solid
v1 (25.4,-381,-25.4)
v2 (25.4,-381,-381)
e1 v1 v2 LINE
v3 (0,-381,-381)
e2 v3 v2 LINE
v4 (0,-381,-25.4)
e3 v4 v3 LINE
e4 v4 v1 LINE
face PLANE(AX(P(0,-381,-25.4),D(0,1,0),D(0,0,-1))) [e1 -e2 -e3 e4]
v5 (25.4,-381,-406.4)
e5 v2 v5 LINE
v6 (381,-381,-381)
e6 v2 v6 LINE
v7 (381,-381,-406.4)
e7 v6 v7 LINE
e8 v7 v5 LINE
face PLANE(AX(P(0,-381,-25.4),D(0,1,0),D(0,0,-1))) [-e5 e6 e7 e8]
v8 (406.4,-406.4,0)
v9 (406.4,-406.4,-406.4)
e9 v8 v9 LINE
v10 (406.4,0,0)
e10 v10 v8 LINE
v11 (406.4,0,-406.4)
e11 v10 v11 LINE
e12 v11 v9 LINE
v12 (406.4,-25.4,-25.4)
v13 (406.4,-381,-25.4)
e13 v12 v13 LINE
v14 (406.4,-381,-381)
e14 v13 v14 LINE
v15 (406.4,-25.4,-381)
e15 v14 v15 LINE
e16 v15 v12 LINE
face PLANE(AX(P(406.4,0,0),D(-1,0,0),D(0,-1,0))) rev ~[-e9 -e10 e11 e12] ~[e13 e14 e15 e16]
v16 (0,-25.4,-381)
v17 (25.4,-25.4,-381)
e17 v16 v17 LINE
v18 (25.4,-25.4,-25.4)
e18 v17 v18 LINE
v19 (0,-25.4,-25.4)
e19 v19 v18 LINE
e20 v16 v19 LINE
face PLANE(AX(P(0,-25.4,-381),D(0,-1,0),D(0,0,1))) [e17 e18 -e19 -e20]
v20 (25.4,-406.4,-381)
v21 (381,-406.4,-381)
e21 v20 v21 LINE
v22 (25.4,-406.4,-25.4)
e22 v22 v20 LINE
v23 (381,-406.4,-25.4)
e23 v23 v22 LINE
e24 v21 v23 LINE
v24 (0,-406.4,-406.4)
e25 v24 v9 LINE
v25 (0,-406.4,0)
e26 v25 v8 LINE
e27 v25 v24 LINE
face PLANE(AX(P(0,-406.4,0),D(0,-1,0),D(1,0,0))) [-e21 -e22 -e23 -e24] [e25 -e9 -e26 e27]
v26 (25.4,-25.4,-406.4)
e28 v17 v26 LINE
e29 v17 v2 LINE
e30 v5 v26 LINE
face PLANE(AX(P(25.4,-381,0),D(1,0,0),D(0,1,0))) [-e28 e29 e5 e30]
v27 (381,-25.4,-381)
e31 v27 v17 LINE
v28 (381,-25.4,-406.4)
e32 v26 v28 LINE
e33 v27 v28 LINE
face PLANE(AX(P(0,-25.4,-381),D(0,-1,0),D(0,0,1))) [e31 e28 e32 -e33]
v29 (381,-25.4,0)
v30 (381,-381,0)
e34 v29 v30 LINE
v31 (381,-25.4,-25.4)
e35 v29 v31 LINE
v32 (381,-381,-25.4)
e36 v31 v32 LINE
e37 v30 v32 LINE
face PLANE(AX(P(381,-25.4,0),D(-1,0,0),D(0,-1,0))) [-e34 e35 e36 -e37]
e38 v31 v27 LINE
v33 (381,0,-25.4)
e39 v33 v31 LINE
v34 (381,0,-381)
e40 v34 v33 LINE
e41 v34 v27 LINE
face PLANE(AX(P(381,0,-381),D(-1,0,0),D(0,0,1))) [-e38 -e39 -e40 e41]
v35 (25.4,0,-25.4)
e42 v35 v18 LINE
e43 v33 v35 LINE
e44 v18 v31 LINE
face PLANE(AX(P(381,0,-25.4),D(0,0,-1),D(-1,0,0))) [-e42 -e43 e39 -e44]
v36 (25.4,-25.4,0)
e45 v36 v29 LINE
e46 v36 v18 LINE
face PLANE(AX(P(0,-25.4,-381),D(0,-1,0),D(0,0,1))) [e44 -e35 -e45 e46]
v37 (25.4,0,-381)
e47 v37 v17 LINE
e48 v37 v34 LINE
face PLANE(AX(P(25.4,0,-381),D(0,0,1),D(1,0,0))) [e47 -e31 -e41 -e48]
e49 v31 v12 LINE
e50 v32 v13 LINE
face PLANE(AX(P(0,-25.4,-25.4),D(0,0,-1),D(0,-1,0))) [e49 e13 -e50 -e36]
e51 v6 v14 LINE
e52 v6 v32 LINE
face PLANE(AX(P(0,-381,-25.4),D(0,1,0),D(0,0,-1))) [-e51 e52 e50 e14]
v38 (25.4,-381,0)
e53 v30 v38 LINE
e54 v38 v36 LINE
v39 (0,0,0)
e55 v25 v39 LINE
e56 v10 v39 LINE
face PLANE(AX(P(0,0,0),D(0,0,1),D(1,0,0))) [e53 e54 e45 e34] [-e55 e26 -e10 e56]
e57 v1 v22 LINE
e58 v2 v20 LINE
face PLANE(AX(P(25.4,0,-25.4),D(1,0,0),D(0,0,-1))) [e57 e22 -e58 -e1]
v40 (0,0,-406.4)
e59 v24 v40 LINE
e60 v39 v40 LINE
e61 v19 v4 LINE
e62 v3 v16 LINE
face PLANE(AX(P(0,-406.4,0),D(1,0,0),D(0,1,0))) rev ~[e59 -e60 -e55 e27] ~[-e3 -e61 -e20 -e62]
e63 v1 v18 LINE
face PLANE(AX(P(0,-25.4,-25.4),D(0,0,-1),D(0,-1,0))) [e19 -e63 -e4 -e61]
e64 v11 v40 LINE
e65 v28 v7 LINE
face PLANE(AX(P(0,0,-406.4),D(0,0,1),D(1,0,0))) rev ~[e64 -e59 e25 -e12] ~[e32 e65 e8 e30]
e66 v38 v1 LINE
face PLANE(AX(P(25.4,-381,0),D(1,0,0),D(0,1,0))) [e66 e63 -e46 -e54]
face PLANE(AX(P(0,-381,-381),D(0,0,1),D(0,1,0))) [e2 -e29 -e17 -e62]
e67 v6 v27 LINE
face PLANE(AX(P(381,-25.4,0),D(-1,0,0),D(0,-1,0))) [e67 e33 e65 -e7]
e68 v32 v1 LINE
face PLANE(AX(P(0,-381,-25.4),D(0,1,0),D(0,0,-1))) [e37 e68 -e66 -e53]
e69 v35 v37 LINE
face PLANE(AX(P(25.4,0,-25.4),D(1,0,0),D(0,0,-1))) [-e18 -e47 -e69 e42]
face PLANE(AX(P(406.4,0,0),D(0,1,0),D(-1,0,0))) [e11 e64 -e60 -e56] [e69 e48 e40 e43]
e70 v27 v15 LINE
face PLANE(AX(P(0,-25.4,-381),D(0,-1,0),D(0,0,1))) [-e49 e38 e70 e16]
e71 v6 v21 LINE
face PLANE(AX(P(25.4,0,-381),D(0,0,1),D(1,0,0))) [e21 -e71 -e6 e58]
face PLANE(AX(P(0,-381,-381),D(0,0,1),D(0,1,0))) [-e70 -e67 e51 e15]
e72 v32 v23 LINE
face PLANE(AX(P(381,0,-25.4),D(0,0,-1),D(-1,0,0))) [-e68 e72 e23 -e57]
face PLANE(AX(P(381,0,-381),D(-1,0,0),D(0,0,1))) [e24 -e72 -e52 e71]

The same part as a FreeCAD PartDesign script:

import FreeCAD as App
import Part
import Sketcher
Q = App.Units.Quantity


def add_polygon(sketch, points):
    """Adds a closed chain of lines whose ends are joined by coincident constraints."""
    first, n = sketch.GeometryCount, len(points)
    for a, b in zip(points, points[1:] + points[:1]):
        sketch.addGeometry(Part.LineSegment(App.Vector(*a, 0), App.Vector(*b, 0)), False)
    for i in range(n):
        sketch.addConstraint(Sketcher.Constraint("Coincident", first + i, 2, first + (i + 1) % n, 1))

doc = App.newDocument("Part")
body = doc.addObject("PartDesign::Body", "Body")

sketch1 = doc.addObject("Sketcher::SketchObject", "Sketch")
body.addObject(sketch1)
sketch1.AttachmentSupport = (doc.XY_Plane, [""])
sketch1.MapMode = "FlatFace"
add_polygon(sketch1, [(406.4, -406.4), (406.4, 0), (0, 0), (0, -406.4)])
sketch1.addConstraint(Sketcher.Constraint("Vertical", 0))
sketch1.addConstraint(Sketcher.Constraint("Horizontal", 1))
sketch1.addConstraint(Sketcher.Constraint("Vertical", 2))
sketch1.addConstraint(Sketcher.Constraint("Horizontal", 3))
sketch1.addConstraint(Sketcher.Constraint("Coincident", 1, 2, -1, 1))
sketch1.addConstraint(Sketcher.Constraint("Equal", 3, 0))
sketch1.addConstraint(Sketcher.Constraint("DistanceX", 1, 2, 1, 1, Q("16 in")))
pad1 = doc.addObject("PartDesign::Pad", "Pad")
body.addObject(pad1)
pad1.Profile = sketch1
pad1.Length = Q("16 in")
pad1.Reversed = True

sketch2 = doc.addObject("Sketcher::SketchObject", "Sketch001")
body.addObject(sketch2)
sketch2.AttachmentSupport = (doc.XY_Plane, [""])
sketch2.MapMode = "FlatFace"
add_polygon(sketch2, [(381, -25.4), (25.4, -25.4), (25.4, -381), (381, -381)])
sketch2.addConstraint(Sketcher.Constraint("Horizontal", 0))
sketch2.addConstraint(Sketcher.Constraint("Vertical", 1))
sketch2.addConstraint(Sketcher.Constraint("Horizontal", 2))
sketch2.addConstraint(Sketcher.Constraint("Vertical", 3))
sketch2.addConstraint(Sketcher.Constraint("Equal", 2, 1))
sketch2.addConstraint(Sketcher.Constraint("DistanceX", 0, 2, 0, 1, Q("14 in")))
sketch2.addConstraint(Sketcher.Constraint("DistanceX", -1, 1, 0, 2, Q("1 in")))
sketch2.addConstraint(Sketcher.Constraint("DistanceY", 0, 2, -1, 1, Q("1 in")))
pocket1 = doc.addObject("PartDesign::Pocket", "Pocket")
body.addObject(pocket1)
pocket1.Profile = sketch2
pocket1.Length = Q("16 in")

sketch3 = doc.addObject("Sketcher::SketchObject", "Sketch002")
body.addObject(sketch3)
sketch3.AttachmentSupport = (doc.YZ_Plane, [""])
sketch3.MapMode = "FlatFace"
add_polygon(sketch3, [(-25.4, -25.4), (-25.4, -381), (-381, -381), (-381, -25.4)])
sketch3.addConstraint(Sketcher.Constraint("Vertical", 0))
sketch3.addConstraint(Sketcher.Constraint("Horizontal", 1))
sketch3.addConstraint(Sketcher.Constraint("Vertical", 2))
sketch3.addConstraint(Sketcher.Constraint("Horizontal", 3))
sketch3.addConstraint(Sketcher.Constraint("Equal", 3, 0))
sketch3.addConstraint(Sketcher.Constraint("DistanceX", 1, 2, 1, 1, Q("14 in")))
sketch3.addConstraint(Sketcher.Constraint("DistanceX", 0, 2, -1, 1, Q("1 in")))
sketch3.addConstraint(Sketcher.Constraint("DistanceY", 2, 2, -1, 1, Q("1 in")))
pocket2 = doc.addObject("PartDesign::Pocket", "Pocket001")
body.addObject(pocket2)
pocket2.Profile = sketch3
pocket2.Length = Q("16 in")
pocket2.Reversed = True

sketch4 = doc.addObject("Sketcher::SketchObject", "Sketch003")
body.addObject(sketch4)
sketch4.AttachmentSupport = (doc.XZ_Plane, [""])
sketch4.MapMode = "FlatFace"
add_polygon(sketch4, [(381, -381), (25.4, -381), (25.4, -25.4), (381, -25.4)])
sketch4.addConstraint(Sketcher.Constraint("Horizontal", 0))
sketch4.addConstraint(Sketcher.Constraint("Vertical", 1))
sketch4.addConstraint(Sketcher.Constraint("Horizontal", 2))
sketch4.addConstraint(Sketcher.Constraint("Vertical", 3))
sketch4.addConstraint(Sketcher.Constraint("Equal", 2, 1))
sketch4.addConstraint(Sketcher.Constraint("DistanceX", 0, 2, 0, 1, Q("14 in")))
sketch4.addConstraint(Sketcher.Constraint("DistanceX", -1, 1, 0, 2, Q("1 in")))
sketch4.addConstraint(Sketcher.Constraint("DistanceY", 1, 2, -1, 1, Q("1 in")))
pocket3 = doc.addObject("PartDesign::Pocket", "Pocket002")
body.addObject(pocket3)
pocket3.Profile = sketch4
pocket3.Length = Q("16 in")
pocket3.Reversed = True

doc.recompute()
